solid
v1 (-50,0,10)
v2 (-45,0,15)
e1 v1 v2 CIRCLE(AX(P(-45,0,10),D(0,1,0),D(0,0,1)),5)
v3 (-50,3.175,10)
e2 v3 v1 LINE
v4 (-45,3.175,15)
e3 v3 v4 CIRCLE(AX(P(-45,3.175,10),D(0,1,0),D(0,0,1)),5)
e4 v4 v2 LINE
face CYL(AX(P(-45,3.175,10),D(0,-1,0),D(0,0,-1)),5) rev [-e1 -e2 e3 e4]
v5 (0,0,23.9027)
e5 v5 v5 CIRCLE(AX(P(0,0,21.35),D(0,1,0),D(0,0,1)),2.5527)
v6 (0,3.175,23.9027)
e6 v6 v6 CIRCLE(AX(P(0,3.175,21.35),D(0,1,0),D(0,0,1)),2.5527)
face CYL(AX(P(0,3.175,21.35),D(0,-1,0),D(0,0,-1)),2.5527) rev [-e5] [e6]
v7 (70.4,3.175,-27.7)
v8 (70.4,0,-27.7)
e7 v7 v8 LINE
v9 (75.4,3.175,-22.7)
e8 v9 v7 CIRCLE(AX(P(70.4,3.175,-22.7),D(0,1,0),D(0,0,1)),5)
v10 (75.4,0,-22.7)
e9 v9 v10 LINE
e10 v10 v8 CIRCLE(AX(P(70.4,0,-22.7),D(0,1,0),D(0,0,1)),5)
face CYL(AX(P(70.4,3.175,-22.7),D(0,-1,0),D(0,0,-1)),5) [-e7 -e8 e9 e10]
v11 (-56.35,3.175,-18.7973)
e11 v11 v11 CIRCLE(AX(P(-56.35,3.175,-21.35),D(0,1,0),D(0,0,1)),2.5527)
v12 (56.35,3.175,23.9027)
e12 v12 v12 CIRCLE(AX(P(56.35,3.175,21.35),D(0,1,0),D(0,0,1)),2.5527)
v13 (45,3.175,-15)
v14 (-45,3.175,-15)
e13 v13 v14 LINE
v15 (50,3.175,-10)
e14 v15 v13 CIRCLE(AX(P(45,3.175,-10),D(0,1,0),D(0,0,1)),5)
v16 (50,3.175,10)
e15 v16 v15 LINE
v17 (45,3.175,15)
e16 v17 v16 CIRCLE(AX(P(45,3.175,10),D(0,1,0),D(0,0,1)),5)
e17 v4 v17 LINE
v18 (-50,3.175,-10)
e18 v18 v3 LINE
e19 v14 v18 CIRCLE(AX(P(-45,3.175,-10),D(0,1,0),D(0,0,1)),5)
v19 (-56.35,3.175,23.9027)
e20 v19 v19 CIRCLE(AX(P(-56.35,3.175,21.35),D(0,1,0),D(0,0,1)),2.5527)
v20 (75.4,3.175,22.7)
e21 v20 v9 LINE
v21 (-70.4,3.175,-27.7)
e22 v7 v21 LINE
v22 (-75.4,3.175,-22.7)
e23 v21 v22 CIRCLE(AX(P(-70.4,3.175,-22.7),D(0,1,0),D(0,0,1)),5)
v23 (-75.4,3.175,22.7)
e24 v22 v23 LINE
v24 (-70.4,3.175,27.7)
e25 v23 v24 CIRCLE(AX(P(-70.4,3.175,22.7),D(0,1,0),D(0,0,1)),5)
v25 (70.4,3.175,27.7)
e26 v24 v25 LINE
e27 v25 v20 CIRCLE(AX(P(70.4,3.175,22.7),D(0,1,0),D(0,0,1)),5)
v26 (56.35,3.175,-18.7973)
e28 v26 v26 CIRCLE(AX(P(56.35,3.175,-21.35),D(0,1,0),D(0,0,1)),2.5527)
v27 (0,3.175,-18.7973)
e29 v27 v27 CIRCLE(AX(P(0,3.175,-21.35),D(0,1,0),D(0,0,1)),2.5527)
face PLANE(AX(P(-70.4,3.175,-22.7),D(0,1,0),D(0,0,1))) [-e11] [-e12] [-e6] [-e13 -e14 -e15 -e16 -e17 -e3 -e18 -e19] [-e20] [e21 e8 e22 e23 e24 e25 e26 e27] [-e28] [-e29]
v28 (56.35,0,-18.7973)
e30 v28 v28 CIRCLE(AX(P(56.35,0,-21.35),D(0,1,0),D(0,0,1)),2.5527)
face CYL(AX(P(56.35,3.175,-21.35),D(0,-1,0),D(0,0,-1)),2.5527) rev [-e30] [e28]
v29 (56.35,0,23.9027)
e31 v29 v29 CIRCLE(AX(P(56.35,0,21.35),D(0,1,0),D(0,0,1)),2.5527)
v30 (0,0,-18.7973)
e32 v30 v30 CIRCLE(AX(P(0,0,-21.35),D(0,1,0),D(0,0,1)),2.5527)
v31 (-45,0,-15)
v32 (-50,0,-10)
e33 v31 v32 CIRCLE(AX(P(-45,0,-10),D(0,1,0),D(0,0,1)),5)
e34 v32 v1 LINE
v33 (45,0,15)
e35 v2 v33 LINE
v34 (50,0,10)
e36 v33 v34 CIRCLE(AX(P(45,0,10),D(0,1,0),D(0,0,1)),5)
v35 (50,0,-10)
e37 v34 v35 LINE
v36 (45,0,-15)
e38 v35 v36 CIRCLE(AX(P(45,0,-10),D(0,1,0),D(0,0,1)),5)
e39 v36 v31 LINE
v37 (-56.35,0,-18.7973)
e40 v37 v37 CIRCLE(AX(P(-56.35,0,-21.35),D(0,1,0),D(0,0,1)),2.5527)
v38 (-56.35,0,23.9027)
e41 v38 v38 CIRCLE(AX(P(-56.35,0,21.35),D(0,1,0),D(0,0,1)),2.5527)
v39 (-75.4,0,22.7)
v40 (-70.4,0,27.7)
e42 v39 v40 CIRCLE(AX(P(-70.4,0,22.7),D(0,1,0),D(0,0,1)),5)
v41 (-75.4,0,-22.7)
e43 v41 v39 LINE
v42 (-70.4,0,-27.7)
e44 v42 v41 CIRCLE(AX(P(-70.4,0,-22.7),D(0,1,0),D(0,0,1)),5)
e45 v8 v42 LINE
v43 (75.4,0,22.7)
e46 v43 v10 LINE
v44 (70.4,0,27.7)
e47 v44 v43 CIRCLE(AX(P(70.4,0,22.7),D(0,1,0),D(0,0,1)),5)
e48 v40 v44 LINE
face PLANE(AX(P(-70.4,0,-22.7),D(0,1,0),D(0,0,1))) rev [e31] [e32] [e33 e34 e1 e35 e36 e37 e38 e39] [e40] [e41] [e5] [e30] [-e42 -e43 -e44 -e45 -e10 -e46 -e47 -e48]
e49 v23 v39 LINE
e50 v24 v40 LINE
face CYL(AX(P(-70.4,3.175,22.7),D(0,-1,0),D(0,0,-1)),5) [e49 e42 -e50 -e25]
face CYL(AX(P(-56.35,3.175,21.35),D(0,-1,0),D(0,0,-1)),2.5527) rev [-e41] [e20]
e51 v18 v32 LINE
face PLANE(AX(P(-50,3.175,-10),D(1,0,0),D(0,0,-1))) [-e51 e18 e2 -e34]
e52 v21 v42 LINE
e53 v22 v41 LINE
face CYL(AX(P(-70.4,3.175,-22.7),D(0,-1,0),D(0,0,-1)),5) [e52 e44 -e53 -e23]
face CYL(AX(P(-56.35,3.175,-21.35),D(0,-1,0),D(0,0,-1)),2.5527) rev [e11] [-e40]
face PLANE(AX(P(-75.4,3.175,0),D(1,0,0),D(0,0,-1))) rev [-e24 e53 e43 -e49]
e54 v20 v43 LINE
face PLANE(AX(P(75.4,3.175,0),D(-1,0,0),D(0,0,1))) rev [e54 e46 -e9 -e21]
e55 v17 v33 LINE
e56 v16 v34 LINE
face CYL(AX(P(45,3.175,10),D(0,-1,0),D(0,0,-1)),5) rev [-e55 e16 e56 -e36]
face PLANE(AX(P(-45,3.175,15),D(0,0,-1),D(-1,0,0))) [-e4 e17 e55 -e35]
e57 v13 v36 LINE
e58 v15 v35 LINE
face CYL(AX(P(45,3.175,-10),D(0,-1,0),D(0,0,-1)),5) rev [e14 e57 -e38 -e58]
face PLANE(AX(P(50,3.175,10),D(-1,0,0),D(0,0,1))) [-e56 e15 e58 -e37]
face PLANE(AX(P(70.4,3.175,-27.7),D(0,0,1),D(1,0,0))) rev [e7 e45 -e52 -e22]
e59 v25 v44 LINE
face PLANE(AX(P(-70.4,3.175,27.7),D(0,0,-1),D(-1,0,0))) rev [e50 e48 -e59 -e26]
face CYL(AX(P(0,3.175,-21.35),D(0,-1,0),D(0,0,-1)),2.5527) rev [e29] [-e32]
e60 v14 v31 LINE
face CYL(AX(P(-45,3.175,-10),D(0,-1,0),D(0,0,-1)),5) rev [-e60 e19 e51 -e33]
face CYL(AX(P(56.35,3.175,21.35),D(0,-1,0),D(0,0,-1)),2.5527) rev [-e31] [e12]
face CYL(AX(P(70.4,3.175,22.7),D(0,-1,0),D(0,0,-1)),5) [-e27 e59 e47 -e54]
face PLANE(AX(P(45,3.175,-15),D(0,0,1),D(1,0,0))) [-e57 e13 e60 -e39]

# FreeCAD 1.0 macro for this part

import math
import FreeCAD as App
import Part
import Sketcher
from FreeCAD import Vector

doc = App.newDocument("Part")
body = doc.addObject("PartDesign::Body", "Body")

# Sketch on XZ plane
sketch1 = body.newObject("Sketcher::SketchObject", "Sketch")
sketch1.AttachmentSupport = (doc.getObject("XZ_Plane"), [""])
sketch1.MapMode = "FlatFace"
sketch1.addGeometry([
    Part.LineSegment(Vector(-75.4, -22.7, 0), Vector(-75.4, 22.7, 0)),  # 0
    Part.ArcOfCircle(Part.Circle(Vector(-70.4, 22.7, 0), Vector(0, 0, 1), 5), math.radians(90), math.radians(180)),  # 1
    Part.LineSegment(Vector(-70.4, 27.7, 0), Vector(70.4, 27.7, 0)),  # 2
    Part.ArcOfCircle(Part.Circle(Vector(70.4, 22.7, 0), Vector(0, 0, 1), 5), math.radians(0), math.radians(90)),  # 3
    Part.LineSegment(Vector(75.4, 22.7, 0), Vector(75.4, -22.7, 0)),  # 4
    Part.ArcOfCircle(Part.Circle(Vector(70.4, -22.7, 0), Vector(0, 0, 1), 5), math.radians(-90), math.radians(0)),  # 5
    Part.LineSegment(Vector(70.4, -27.7, 0), Vector(-70.4, -27.7, 0)),  # 6
    Part.ArcOfCircle(Part.Circle(Vector(-70.4, -22.7, 0), Vector(0, 0, 1), 5), math.radians(180), math.radians(270)),  # 7
    Part.Circle(Vector(-56.35, 21.35, 0), Vector(0, 0, 1), 2.5527),  # 8
    Part.Circle(Vector(0, 21.35, 0), Vector(0, 0, 1), 2.5527),  # 9
    Part.LineSegment(Vector(-45, -15, 0), Vector(45, -15, 0)),  # 10
    Part.ArcOfCircle(Part.Circle(Vector(45, -10, 0), Vector(0, 0, 1), 5), math.radians(-90), math.radians(0)),  # 11
    Part.LineSegment(Vector(50, -10, 0), Vector(50, 10, 0)),  # 12
    Part.ArcOfCircle(Part.Circle(Vector(45, 10, 0), Vector(0, 0, 1), 5), math.radians(0), math.radians(90)),  # 13
    Part.LineSegment(Vector(45, 15, 0), Vector(-45, 15, 0)),  # 14
    Part.ArcOfCircle(Part.Circle(Vector(-45, 10, 0), Vector(0, 0, 1), 5), math.radians(90), math.radians(180)),  # 15
    Part.LineSegment(Vector(-50, 10, 0), Vector(-50, -10, 0)),  # 16
    Part.ArcOfCircle(Part.Circle(Vector(-45, -10, 0), Vector(0, 0, 1), 5), math.radians(180), math.radians(270)),  # 17
    Part.Circle(Vector(56.35, 21.35, 0), Vector(0, 0, 1), 2.5527),  # 18
    Part.Circle(Vector(-56.35, -21.35, 0), Vector(0, 0, 1), 2.5527),  # 19
    Part.Circle(Vector(0, -21.35, 0), Vector(0, 0, 1), 2.5527),  # 20
    Part.Circle(Vector(56.35, -21.35, 0), Vector(0, 0, 1), 2.5527),  # 21
], False)
sketch1.addConstraint([
    Sketcher.Constraint("Tangent", 0, 2, 1, 2),
    Sketcher.Constraint("Tangent", 1, 1, 2, 1),
    Sketcher.Constraint("Tangent", 2, 2, 3, 2),
    Sketcher.Constraint("Tangent", 3, 1, 4, 1),
    Sketcher.Constraint("Tangent", 4, 2, 5, 2),
    Sketcher.Constraint("Tangent", 5, 1, 6, 1),
    Sketcher.Constraint("Tangent", 6, 2, 7, 2),
    Sketcher.Constraint("Tangent", 7, 1, 0, 1),
    Sketcher.Constraint("Tangent", 10, 2, 11, 1),
    Sketcher.Constraint("Tangent", 11, 2, 12, 1),
    Sketcher.Constraint("Tangent", 12, 2, 13, 1),
    Sketcher.Constraint("Tangent", 13, 2, 14, 1),
    Sketcher.Constraint("Tangent", 14, 2, 15, 1),
    Sketcher.Constraint("Tangent", 15, 2, 16, 1),
    Sketcher.Constraint("Tangent", 16, 2, 17, 1),
    Sketcher.Constraint("Tangent", 17, 2, 10, 1),
    Sketcher.Constraint("Vertical", 0),
    Sketcher.Constraint("Horizontal", 2),
    Sketcher.Constraint("Vertical", 4),
    Sketcher.Constraint("Horizontal", 6),
    Sketcher.Constraint("Horizontal", 10),
    Sketcher.Constraint("Vertical", 12),
    Sketcher.Constraint("Horizontal", 14),
    Sketcher.Constraint("Vertical", 16),
    Sketcher.Constraint("Equal", 1, 3),
    Sketcher.Constraint("Equal", 3, 5),
    Sketcher.Constraint("Equal", 5, 7),
    Sketcher.Constraint("Equal", 8, 9),
    Sketcher.Constraint("Equal", 7, 11),
    Sketcher.Constraint("Equal", 11, 13),
    Sketcher.Constraint("Equal", 13, 15),
    Sketcher.Constraint("Equal", 15, 17),
    Sketcher.Constraint("Equal", 9, 18),
    Sketcher.Constraint("Equal", 18, 19),
    Sketcher.Constraint("Equal", 19, 20),
    Sketcher.Constraint("Equal", 20, 21),
    Sketcher.Constraint("Symmetric", 1, 3, 5, 3, -1, 1),
    Sketcher.Constraint("Symmetric", 11, 3, 15, 3, -1, 1),
    Sketcher.Constraint("Symmetric", 18, 3, 19, 3, -1, 1),
    Sketcher.Constraint("Symmetric", 9, 3, 20, 3, -1, 1),
    Sketcher.Constraint("Symmetric", 8, 3, 21, 3, -1, 1),
    Sketcher.Constraint("Symmetric", 8, 3, 18, 3, -2),
    Sketcher.Constraint("PointOnObject", 9, 3, -2),
    Sketcher.Constraint("Horizontal", 8, 3, 9, 3),
    Sketcher.Constraint("Radius", 1, 5.0),
    Sketcher.Constraint("DistanceX", 10, 1, 10, 2, 90.0),
    Sketcher.Constraint("DistanceY", 12, 1, 12, 2, 20.0),
    Sketcher.Constraint("DistanceX", 2, 1, 2, 2, 140.8),
    Sketcher.Constraint("DistanceY", 0, 1, 0, 2, 45.4),
    Sketcher.Constraint("Diameter", 8, 5.1054),
    Sketcher.Constraint("DistanceY", 19, 3, 8, 3, 42.7),
    Sketcher.Constraint("DistanceX", 8, 3, -1, 1, 56.35),
])
pad1 = body.newObject("PartDesign::Pad", "Pad")
pad1.Profile = sketch1
pad1.Length = 3.175
pad1.Reversed = True

doc.recompute()
